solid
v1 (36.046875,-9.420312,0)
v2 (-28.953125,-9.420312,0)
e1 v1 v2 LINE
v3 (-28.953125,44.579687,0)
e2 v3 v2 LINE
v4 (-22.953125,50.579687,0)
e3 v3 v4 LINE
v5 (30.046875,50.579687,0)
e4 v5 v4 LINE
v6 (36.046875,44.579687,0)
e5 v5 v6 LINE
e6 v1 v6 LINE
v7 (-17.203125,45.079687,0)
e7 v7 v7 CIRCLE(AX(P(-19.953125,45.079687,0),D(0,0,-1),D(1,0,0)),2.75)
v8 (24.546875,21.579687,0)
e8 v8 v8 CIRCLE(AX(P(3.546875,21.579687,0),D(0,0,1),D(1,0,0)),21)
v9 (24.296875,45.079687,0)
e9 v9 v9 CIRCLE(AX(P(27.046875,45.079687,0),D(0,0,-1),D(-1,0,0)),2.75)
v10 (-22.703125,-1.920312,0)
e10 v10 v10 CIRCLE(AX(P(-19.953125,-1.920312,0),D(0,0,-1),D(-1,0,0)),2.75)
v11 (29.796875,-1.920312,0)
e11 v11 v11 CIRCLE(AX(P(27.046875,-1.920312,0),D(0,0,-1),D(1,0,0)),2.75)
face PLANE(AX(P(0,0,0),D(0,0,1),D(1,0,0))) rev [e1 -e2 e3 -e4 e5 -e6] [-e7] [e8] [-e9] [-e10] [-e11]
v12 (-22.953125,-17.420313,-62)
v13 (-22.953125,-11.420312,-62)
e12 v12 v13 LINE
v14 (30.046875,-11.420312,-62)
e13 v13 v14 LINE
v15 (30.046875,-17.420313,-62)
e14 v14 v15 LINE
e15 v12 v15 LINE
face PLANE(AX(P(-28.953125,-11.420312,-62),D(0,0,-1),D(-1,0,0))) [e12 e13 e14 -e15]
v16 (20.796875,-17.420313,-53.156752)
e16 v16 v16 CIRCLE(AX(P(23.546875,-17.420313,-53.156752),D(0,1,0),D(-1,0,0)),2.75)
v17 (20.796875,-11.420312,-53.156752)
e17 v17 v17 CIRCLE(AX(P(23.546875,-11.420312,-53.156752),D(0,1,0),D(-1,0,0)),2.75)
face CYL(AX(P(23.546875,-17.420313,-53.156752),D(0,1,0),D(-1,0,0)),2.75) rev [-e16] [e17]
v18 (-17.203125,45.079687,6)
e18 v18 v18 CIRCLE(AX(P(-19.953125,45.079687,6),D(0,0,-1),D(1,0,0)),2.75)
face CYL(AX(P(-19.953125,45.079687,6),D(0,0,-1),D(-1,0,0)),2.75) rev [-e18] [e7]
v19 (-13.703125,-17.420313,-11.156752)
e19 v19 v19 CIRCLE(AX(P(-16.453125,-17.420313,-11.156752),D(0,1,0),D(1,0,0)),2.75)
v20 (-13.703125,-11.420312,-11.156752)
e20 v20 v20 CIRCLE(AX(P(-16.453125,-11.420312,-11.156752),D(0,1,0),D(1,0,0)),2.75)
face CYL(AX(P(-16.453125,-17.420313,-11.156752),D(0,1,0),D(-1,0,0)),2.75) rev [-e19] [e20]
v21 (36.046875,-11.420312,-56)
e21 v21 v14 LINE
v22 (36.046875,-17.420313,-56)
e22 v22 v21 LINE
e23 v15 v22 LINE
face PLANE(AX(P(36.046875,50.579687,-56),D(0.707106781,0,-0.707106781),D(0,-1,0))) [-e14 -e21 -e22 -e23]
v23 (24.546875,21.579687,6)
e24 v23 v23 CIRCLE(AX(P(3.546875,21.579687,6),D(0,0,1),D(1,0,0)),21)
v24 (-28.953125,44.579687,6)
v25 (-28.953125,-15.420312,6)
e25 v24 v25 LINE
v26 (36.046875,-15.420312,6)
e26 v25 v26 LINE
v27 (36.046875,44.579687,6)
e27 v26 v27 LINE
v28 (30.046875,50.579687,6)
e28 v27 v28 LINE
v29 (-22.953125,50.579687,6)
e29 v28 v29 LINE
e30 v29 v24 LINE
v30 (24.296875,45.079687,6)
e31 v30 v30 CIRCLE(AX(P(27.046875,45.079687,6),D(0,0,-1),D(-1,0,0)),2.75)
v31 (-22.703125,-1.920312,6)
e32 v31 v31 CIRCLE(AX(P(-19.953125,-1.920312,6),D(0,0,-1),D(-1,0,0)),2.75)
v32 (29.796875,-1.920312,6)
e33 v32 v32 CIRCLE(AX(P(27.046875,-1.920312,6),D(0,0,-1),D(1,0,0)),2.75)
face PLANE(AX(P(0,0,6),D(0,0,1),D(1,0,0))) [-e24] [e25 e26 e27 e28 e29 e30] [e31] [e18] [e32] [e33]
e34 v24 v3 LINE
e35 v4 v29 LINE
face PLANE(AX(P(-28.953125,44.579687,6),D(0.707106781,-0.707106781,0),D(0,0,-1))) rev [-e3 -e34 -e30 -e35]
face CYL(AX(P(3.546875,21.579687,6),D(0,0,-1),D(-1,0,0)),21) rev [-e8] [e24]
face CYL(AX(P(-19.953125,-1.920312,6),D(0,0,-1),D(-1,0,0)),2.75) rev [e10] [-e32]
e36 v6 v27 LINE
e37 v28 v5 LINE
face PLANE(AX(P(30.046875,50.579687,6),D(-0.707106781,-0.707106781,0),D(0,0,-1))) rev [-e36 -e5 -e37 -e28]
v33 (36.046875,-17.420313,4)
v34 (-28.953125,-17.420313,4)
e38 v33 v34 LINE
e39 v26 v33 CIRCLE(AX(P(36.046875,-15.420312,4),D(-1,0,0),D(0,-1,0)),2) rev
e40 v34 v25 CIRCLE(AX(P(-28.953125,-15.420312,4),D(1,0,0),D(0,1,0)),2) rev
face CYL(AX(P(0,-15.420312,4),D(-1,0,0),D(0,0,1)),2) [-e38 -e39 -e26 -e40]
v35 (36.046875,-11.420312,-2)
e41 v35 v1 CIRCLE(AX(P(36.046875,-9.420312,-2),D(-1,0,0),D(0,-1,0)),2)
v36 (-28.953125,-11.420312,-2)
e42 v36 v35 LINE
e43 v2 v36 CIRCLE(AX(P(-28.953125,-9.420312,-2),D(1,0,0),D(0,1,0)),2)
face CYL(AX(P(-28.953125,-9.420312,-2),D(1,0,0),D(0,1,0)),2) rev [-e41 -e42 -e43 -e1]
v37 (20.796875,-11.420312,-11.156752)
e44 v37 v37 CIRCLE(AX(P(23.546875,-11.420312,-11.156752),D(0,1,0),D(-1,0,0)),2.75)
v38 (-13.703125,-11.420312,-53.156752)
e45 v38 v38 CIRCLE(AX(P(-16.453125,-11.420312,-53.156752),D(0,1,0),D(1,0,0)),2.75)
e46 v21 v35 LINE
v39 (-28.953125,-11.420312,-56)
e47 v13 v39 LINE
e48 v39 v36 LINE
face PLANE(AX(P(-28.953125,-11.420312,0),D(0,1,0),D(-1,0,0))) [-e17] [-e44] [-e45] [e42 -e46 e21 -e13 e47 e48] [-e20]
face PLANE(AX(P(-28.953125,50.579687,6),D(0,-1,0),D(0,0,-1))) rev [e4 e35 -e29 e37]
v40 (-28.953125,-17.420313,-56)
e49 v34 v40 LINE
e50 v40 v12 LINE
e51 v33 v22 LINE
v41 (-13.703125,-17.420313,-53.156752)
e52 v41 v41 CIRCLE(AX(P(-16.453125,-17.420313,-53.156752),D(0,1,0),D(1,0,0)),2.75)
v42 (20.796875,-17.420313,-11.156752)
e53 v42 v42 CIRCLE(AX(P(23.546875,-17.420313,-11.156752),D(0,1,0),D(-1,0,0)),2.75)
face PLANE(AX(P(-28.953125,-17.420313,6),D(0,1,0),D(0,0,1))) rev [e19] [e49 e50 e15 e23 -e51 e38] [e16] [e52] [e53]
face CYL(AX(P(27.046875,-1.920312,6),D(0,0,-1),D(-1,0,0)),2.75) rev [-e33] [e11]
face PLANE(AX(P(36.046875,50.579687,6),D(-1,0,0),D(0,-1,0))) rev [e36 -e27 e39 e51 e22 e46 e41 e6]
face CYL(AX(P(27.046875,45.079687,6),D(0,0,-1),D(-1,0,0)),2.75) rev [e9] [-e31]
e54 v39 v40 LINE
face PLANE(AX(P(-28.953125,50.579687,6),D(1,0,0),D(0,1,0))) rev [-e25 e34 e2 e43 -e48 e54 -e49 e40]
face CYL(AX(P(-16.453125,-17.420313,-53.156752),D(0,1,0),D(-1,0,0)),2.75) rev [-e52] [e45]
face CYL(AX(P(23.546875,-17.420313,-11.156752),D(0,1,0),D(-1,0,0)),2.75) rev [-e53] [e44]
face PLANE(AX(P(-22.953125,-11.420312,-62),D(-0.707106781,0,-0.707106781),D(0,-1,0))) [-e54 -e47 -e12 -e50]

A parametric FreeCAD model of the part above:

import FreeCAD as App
import Part
import Sketcher
from FreeCAD import Vector


def edges_at(feature, points):
    """Names of the edges that pass closest to the given points."""
    edges = feature.Shape.Edges
    near = lambda p: min(range(len(edges)), key=lambda i: edges[i].distToShape(Part.Vertex(*p))[0])
    return sorted({f"Edge{near(p) + 1}" for p in points})

doc = App.newDocument("Part")
body = doc.addObject("PartDesign::Body", "Body")

# Sketch on XY plane
sketch1 = doc.addObject("Sketcher::SketchObject", "Sketch")
body.addObject(sketch1)
sketch1.AttachmentSupport = (doc.XY_Plane, [""])
sketch1.MapMode = "FlatFace"
sketch1.addGeometry(Part.LineSegment(Vector(-28.953125, 50.579687, 0), Vector(-28.953125, -17.420313, 0)), False)
sketch1.addGeometry(Part.LineSegment(Vector(-28.953125, -17.420313, 0), Vector(36.046875, -17.420313, 0)), False)
sketch1.addGeometry(Part.LineSegment(Vector(36.046875, -17.420313, 0), Vector(36.046875, 50.579687, 0)), False)
sketch1.addGeometry(Part.LineSegment(Vector(36.046875, 50.579687, 0), Vector(-28.953125, 50.579687, 0)), False)
sketch1.addGeometry(Part.Circle(Vector(3.546875, 21.579687, 0), Vector(0, 0, 1), 21), False)
sketch1.addConstraint(Sketcher.Constraint("Coincident", 0, 2, 1, 1))
sketch1.addConstraint(Sketcher.Constraint("Coincident", 1, 2, 2, 1))
sketch1.addConstraint(Sketcher.Constraint("Coincident", 2, 2, 3, 1))
sketch1.addConstraint(Sketcher.Constraint("Coincident", 3, 2, 0, 1))
sketch1.addConstraint(Sketcher.Constraint("Vertical", 0))
sketch1.addConstraint(Sketcher.Constraint("Horizontal", 1))
sketch1.addConstraint(Sketcher.Constraint("Vertical", 2))
sketch1.addConstraint(Sketcher.Constraint("Horizontal", 3))
sketch1.addConstraint(Sketcher.Constraint("Diameter", 4, 42.0))
sketch1.addConstraint(Sketcher.Constraint("DistanceX", 1, 1, 1, 2, 65.0))
sketch1.addConstraint(Sketcher.Constraint("DistanceY", 0, 2, 0, 1, 68.0))
sketch1.addConstraint(Sketcher.Constraint("DistanceY", 0, 2, 4, 3, 39.0))
sketch1.addConstraint(Sketcher.Constraint("DistanceX", 0, 2, 4, 3, 32.5))
sketch1.addConstraint(Sketcher.Constraint("DistanceX", -1, 1, 4, 3, 3.546875))
sketch1.addConstraint(Sketcher.Constraint("DistanceY", -1, 1, 4, 3, 21.579687))
pad1 = doc.addObject("PartDesign::Pad", "Pad")
body.addObject(pad1)
pad1.Profile = sketch1
pad1.Length = 6

# Sketch on YZ plane
sketch2 = doc.addObject("Sketcher::SketchObject", "Sketch001")
body.addObject(sketch2)
sketch2.AttachmentSupport = (doc.YZ_Plane, [""])
sketch2.MapMode = "FlatFace"
sketch2.AttachmentOffset = App.Placement(Vector(0, 0, 36.046875), App.Rotation())
sketch2.addGeometry(Part.LineSegment(Vector(-11.420312, 0, 0), Vector(-17.420313, 0, 0)), False)
sketch2.addGeometry(Part.LineSegment(Vector(-17.420313, 0, 0), Vector(-17.420313, -62, 0)), False)
sketch2.addGeometry(Part.LineSegment(Vector(-17.420313, -62, 0), Vector(-11.420312, -62, 0)), False)
sketch2.addGeometry(Part.LineSegment(Vector(-11.420312, -62, 0), Vector(-11.420312, 0, 0)), False)
sketch2.addConstraint(Sketcher.Constraint("Coincident", 0, 2, 1, 1))
sketch2.addConstraint(Sketcher.Constraint("Coincident", 1, 2, 2, 1))
sketch2.addConstraint(Sketcher.Constraint("Coincident", 2, 2, 3, 1))
sketch2.addConstraint(Sketcher.Constraint("Coincident", 3, 2, 0, 1))
sketch2.addConstraint(Sketcher.Constraint("Horizontal", 0))
sketch2.addConstraint(Sketcher.Constraint("Vertical", 1))
sketch2.addConstraint(Sketcher.Constraint("Horizontal", 2))
sketch2.addConstraint(Sketcher.Constraint("Vertical", 3))
sketch2.addConstraint(Sketcher.Constraint("PointOnObject", 0, 2, -1))
sketch2.addConstraint(Sketcher.Constraint("DistanceX", 0, 2, 0, 1, 6.0))
sketch2.addConstraint(Sketcher.Constraint("DistanceY", 1, 2, 1, 1, 62.0))
sketch2.addConstraint(Sketcher.Constraint("DistanceX", 0, 2, -1, 1, 17.420313))
pad2 = doc.addObject("PartDesign::Pad", "Pad001")
body.addObject(pad2)
pad2.Profile = sketch2
pad2.Length = 65
pad2.Reversed = True
doc.recompute()

chamfer = doc.addObject("PartDesign::Chamfer", "Chamfer")
body.addObject(chamfer)
chamfer.Base = (pad2, edges_at(pad2, [(36.047, -14.42, -62)]))
chamfer.Size = 6
doc.recompute()

chamfer2 = doc.addObject("PartDesign::Chamfer", "Chamfer001")
body.addObject(chamfer2)
chamfer2.Base = (chamfer, edges_at(chamfer, [(-28.953, -14.42, -62)]))
chamfer2.Size = 6
doc.recompute()

chamfer3 = doc.addObject("PartDesign::Chamfer", "Chamfer002")
body.addObject(chamfer3)
chamfer3.Base = (chamfer2, edges_at(chamfer2, [(-28.953, 50.58, 3)]))
chamfer3.Size = 6
doc.recompute()

chamfer4 = doc.addObject("PartDesign::Chamfer", "Chamfer003")
body.addObject(chamfer4)
chamfer4.Base = (chamfer3, edges_at(chamfer3, [(36.047, 50.58, 3)]))
chamfer4.Size = 6
doc.recompute()

fillet = doc.addObject("PartDesign::Fillet", "Fillet")
body.addObject(fillet)
fillet.Base = (chamfer4, edges_at(chamfer4, [(3.547, -17.42, 6)]))
fillet.Radius = 2
doc.recompute()

fillet2 = doc.addObject("PartDesign::Fillet", "Fillet001")
body.addObject(fillet2)
fillet2.Base = (fillet, edges_at(fillet, [(3.547, -11.42, 0)]))
fillet2.Radius = 2

# Sketch on XY plane
sketch3 = doc.addObject("Sketcher::SketchObject", "Sketch002")
body.addObject(sketch3)
sketch3.AttachmentSupport = (doc.XY_Plane, [""])
sketch3.MapMode = "FlatFace"
sketch3.addGeometry(Part.Circle(Vector(27.046875, 45.079687, 0), Vector(0, 0, 1), 2.75), False)
sketch3.addGeometry(Part.Circle(Vector(-19.953125, 45.079687, 0), Vector(0, 0, 1), 2.75), False)
sketch3.addGeometry(Part.Circle(Vector(-19.953125, -1.920313, 0), Vector(0, 0, 1), 2.75), False)
sketch3.addGeometry(Part.Circle(Vector(27.046875, -1.920313, 0), Vector(0, 0, 1), 2.75), False)
sketch3.addConstraint(Sketcher.Constraint("Equal", 0, 1))
sketch3.addConstraint(Sketcher.Constraint("Equal", 1, 2))
sketch3.addConstraint(Sketcher.Constraint("Equal", 2, 3))
sketch3.addConstraint(Sketcher.Constraint("Horizontal", 0, 3, 1, 3))
sketch3.addConstraint(Sketcher.Constraint("Horizontal", 2, 3, 3, 3))
sketch3.addConstraint(Sketcher.Constraint("Vertical", 1, 3, 2, 3))
sketch3.addConstraint(Sketcher.Constraint("Vertical", 0, 3, 3, 3))
sketch3.addConstraint(Sketcher.Constraint("Diameter", 0, 5.5))
sketch3.addConstraint(Sketcher.Constraint("DistanceX", 1, 3, 0, 3, 47.0))
sketch3.addConstraint(Sketcher.Constraint("DistanceY", 2, 3, 1, 3, 47.0))
sketch3.addConstraint(Sketcher.Constraint("DistanceX", -1, 1, 0, 3, 27.046875))
sketch3.addConstraint(Sketcher.Constraint("DistanceY", -1, 1, 0, 3, 45.079687))
pocket1 = doc.addObject("PartDesign::Pocket", "Pocket")
body.addObject(pocket1)
pocket1.Profile = sketch3
pocket1.Type = "ThroughAll"
pocket1.Reversed = True

# Sketch on XZ plane
sketch4 = doc.addObject("Sketcher::SketchObject", "Sketch003")
body.addObject(sketch4)
sketch4.AttachmentSupport = (doc.XZ_Plane, [""])
sketch4.MapMode = "FlatFace"
sketch4.AttachmentOffset = App.Placement(Vector(0, 0, 11.420312), App.Rotation())
sketch4.addGeometry(Part.Circle(Vector(23.546875, -11.156752, 0), Vector(0, 0, 1), 2.75), False)
sketch4.addGeometry(Part.Circle(Vector(23.546875, -53.156752, 0), Vector(0, 0, 1), 2.75), False)
sketch4.addGeometry(Part.Circle(Vector(-16.453125, -53.156752, 0), Vector(0, 0, 1), 2.75), False)
sketch4.addGeometry(Part.Circle(Vector(-16.453125, -11.156752, 0), Vector(0, 0, 1), 2.75), False)
sketch4.addConstraint(Sketcher.Constraint("Equal", 0, 1))
sketch4.addConstraint(Sketcher.Constraint("Equal", 1, 2))
sketch4.addConstraint(Sketcher.Constraint("Equal", 2, 3))
sketch4.addConstraint(Sketcher.Constraint("Horizontal", 1, 3, 2, 3))
sketch4.addConstraint(Sketcher.Constraint("Horizontal", 0, 3, 3, 3))
sketch4.addConstraint(Sketcher.Constraint("Vertical", 0, 3, 1, 3))
sketch4.addConstraint(Sketcher.Constraint("Vertical", 2, 3, 3, 3))
sketch4.addConstraint(Sketcher.Constraint("Diameter", 0, 5.5))
sketch4.addConstraint(Sketcher.Constraint("DistanceY", 1, 3, 0, 3, 42.0))
sketch4.addConstraint(Sketcher.Constraint("DistanceX", 2, 3, 1, 3, 40.0))
sketch4.addConstraint(Sketcher.Constraint("DistanceX", -1, 1, 0, 3, 23.546875))
sketch4.addConstraint(Sketcher.Constraint("DistanceY", 0, 3, -1, 1, 11.156752))
pocket2 = doc.addObject("PartDesign::Pocket", "Pocket001")
body.addObject(pocket2)
pocket2.Profile = sketch4
pocket2.Type = "ThroughAll"
pocket2.Reversed = True

doc.recompute()
